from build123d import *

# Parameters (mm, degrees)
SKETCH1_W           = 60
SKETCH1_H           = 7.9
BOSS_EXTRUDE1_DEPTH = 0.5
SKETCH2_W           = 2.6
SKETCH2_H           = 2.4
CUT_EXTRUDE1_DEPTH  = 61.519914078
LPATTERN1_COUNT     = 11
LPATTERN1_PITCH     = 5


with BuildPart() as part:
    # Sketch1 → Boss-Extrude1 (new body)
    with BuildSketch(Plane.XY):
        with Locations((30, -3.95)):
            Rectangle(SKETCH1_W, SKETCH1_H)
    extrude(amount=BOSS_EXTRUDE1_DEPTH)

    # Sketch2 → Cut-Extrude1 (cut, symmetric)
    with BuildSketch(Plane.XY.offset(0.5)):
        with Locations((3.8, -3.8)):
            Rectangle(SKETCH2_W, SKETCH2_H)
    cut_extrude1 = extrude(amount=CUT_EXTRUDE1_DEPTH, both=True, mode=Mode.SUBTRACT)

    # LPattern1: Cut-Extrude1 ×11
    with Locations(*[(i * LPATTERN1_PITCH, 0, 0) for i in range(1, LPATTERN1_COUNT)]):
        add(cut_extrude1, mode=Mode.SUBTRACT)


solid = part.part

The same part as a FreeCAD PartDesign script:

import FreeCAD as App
import Part
import Sketcher
from FreeCAD import Vector


def add_polygon(sketch, points):
    """Adds a closed chain of lines whose ends are joined by coincident constraints."""
    first, n = sketch.GeometryCount, len(points)
    for a, b in zip(points, points[1:] + points[:1]):
        sketch.addGeometry(Part.LineSegment(App.Vector(*a, 0), App.Vector(*b, 0)), False)
    for i in range(n):
        sketch.addConstraint(Sketcher.Constraint("Coincident", first + i, 2, first + (i + 1) % n, 1))

doc = App.newDocument("Part")
body = doc.addObject("PartDesign::Body", "Body")

sketch1 = body.newObject("Sketcher::SketchObject", "Sketch")
sketch1.AttachmentSupport = (doc.getObject("XY_Plane"), [""])
sketch1.MapMode = "FlatFace"
add_polygon(sketch1, [(0, 0), (0, -8), (60, -8), (60, 0)])
sketch1.addConstraint(Sketcher.Constraint("Vertical", 0))
sketch1.addConstraint(Sketcher.Constraint("Horizontal", 1))
sketch1.addConstraint(Sketcher.Constraint("Vertical", 2))
sketch1.addConstraint(Sketcher.Constraint("Horizontal", 3))
sketch1.addConstraint(Sketcher.Constraint("Coincident", 3, 2, -1, 1))
sketch1.addConstraint(Sketcher.Constraint("DistanceX", 1, 1, 1, 2, 60.0))
sketch1.addConstraint(Sketcher.Constraint("DistanceY", 0, 2, 0, 1, 7.9))
pad1 = body.newObject("PartDesign::Pad", "Pad")
pad1.Profile = sketch1
pad1.Length = 0.5

sketch2 = body.newObject("Sketcher::SketchObject", "Sketch001")
sketch2.AttachmentSupport = (doc.getObject("XY_Plane"), [""])
sketch2.MapMode = "FlatFace"
sketch2.AttachmentOffset = App.Placement(Vector(0, 0, 0.5), App.Rotation())
add_polygon(sketch2, [(2.5, -2.6), (2.5, -5), (5.1, -5), (5.1, -2.6)])
sketch2.addConstraint(Sketcher.Constraint("Vertical", 0))
sketch2.addConstraint(Sketcher.Constraint("Horizontal", 1))
sketch2.addConstraint(Sketcher.Constraint("Vertical", 2))
sketch2.addConstraint(Sketcher.Constraint("Horizontal", 3))
sketch2.addConstraint(Sketcher.Constraint("DistanceX", 1, 1, 1, 2, 2.6))
sketch2.addConstraint(Sketcher.Constraint("DistanceY", 0, 2, 0, 1, 2.4))
sketch2.addConstraint(Sketcher.Constraint("DistanceY", 0, 2, -1, 1, 5.0))
sketch2.addConstraint(Sketcher.Constraint("DistanceX", -1, 1, 0, 2, 2.5))
pocket1 = body.newObject("PartDesign::Pocket", "Pocket")
pocket1.Profile = sketch2
pocket1.Length = 123.039828
pocket1.Midplane = True
doc.recompute()

linearpattern = body.newObject("PartDesign::LinearPattern", "LinearPattern")
linearpattern.Originals = [pocket1]
linearpattern.Direction = (doc.getObject("X_Axis"), [""])
linearpattern.Mode = "offset"
linearpattern.Offset = 5
linearpattern.Occurrences = 11
body.Tip = linearpattern

doc.recompute()
